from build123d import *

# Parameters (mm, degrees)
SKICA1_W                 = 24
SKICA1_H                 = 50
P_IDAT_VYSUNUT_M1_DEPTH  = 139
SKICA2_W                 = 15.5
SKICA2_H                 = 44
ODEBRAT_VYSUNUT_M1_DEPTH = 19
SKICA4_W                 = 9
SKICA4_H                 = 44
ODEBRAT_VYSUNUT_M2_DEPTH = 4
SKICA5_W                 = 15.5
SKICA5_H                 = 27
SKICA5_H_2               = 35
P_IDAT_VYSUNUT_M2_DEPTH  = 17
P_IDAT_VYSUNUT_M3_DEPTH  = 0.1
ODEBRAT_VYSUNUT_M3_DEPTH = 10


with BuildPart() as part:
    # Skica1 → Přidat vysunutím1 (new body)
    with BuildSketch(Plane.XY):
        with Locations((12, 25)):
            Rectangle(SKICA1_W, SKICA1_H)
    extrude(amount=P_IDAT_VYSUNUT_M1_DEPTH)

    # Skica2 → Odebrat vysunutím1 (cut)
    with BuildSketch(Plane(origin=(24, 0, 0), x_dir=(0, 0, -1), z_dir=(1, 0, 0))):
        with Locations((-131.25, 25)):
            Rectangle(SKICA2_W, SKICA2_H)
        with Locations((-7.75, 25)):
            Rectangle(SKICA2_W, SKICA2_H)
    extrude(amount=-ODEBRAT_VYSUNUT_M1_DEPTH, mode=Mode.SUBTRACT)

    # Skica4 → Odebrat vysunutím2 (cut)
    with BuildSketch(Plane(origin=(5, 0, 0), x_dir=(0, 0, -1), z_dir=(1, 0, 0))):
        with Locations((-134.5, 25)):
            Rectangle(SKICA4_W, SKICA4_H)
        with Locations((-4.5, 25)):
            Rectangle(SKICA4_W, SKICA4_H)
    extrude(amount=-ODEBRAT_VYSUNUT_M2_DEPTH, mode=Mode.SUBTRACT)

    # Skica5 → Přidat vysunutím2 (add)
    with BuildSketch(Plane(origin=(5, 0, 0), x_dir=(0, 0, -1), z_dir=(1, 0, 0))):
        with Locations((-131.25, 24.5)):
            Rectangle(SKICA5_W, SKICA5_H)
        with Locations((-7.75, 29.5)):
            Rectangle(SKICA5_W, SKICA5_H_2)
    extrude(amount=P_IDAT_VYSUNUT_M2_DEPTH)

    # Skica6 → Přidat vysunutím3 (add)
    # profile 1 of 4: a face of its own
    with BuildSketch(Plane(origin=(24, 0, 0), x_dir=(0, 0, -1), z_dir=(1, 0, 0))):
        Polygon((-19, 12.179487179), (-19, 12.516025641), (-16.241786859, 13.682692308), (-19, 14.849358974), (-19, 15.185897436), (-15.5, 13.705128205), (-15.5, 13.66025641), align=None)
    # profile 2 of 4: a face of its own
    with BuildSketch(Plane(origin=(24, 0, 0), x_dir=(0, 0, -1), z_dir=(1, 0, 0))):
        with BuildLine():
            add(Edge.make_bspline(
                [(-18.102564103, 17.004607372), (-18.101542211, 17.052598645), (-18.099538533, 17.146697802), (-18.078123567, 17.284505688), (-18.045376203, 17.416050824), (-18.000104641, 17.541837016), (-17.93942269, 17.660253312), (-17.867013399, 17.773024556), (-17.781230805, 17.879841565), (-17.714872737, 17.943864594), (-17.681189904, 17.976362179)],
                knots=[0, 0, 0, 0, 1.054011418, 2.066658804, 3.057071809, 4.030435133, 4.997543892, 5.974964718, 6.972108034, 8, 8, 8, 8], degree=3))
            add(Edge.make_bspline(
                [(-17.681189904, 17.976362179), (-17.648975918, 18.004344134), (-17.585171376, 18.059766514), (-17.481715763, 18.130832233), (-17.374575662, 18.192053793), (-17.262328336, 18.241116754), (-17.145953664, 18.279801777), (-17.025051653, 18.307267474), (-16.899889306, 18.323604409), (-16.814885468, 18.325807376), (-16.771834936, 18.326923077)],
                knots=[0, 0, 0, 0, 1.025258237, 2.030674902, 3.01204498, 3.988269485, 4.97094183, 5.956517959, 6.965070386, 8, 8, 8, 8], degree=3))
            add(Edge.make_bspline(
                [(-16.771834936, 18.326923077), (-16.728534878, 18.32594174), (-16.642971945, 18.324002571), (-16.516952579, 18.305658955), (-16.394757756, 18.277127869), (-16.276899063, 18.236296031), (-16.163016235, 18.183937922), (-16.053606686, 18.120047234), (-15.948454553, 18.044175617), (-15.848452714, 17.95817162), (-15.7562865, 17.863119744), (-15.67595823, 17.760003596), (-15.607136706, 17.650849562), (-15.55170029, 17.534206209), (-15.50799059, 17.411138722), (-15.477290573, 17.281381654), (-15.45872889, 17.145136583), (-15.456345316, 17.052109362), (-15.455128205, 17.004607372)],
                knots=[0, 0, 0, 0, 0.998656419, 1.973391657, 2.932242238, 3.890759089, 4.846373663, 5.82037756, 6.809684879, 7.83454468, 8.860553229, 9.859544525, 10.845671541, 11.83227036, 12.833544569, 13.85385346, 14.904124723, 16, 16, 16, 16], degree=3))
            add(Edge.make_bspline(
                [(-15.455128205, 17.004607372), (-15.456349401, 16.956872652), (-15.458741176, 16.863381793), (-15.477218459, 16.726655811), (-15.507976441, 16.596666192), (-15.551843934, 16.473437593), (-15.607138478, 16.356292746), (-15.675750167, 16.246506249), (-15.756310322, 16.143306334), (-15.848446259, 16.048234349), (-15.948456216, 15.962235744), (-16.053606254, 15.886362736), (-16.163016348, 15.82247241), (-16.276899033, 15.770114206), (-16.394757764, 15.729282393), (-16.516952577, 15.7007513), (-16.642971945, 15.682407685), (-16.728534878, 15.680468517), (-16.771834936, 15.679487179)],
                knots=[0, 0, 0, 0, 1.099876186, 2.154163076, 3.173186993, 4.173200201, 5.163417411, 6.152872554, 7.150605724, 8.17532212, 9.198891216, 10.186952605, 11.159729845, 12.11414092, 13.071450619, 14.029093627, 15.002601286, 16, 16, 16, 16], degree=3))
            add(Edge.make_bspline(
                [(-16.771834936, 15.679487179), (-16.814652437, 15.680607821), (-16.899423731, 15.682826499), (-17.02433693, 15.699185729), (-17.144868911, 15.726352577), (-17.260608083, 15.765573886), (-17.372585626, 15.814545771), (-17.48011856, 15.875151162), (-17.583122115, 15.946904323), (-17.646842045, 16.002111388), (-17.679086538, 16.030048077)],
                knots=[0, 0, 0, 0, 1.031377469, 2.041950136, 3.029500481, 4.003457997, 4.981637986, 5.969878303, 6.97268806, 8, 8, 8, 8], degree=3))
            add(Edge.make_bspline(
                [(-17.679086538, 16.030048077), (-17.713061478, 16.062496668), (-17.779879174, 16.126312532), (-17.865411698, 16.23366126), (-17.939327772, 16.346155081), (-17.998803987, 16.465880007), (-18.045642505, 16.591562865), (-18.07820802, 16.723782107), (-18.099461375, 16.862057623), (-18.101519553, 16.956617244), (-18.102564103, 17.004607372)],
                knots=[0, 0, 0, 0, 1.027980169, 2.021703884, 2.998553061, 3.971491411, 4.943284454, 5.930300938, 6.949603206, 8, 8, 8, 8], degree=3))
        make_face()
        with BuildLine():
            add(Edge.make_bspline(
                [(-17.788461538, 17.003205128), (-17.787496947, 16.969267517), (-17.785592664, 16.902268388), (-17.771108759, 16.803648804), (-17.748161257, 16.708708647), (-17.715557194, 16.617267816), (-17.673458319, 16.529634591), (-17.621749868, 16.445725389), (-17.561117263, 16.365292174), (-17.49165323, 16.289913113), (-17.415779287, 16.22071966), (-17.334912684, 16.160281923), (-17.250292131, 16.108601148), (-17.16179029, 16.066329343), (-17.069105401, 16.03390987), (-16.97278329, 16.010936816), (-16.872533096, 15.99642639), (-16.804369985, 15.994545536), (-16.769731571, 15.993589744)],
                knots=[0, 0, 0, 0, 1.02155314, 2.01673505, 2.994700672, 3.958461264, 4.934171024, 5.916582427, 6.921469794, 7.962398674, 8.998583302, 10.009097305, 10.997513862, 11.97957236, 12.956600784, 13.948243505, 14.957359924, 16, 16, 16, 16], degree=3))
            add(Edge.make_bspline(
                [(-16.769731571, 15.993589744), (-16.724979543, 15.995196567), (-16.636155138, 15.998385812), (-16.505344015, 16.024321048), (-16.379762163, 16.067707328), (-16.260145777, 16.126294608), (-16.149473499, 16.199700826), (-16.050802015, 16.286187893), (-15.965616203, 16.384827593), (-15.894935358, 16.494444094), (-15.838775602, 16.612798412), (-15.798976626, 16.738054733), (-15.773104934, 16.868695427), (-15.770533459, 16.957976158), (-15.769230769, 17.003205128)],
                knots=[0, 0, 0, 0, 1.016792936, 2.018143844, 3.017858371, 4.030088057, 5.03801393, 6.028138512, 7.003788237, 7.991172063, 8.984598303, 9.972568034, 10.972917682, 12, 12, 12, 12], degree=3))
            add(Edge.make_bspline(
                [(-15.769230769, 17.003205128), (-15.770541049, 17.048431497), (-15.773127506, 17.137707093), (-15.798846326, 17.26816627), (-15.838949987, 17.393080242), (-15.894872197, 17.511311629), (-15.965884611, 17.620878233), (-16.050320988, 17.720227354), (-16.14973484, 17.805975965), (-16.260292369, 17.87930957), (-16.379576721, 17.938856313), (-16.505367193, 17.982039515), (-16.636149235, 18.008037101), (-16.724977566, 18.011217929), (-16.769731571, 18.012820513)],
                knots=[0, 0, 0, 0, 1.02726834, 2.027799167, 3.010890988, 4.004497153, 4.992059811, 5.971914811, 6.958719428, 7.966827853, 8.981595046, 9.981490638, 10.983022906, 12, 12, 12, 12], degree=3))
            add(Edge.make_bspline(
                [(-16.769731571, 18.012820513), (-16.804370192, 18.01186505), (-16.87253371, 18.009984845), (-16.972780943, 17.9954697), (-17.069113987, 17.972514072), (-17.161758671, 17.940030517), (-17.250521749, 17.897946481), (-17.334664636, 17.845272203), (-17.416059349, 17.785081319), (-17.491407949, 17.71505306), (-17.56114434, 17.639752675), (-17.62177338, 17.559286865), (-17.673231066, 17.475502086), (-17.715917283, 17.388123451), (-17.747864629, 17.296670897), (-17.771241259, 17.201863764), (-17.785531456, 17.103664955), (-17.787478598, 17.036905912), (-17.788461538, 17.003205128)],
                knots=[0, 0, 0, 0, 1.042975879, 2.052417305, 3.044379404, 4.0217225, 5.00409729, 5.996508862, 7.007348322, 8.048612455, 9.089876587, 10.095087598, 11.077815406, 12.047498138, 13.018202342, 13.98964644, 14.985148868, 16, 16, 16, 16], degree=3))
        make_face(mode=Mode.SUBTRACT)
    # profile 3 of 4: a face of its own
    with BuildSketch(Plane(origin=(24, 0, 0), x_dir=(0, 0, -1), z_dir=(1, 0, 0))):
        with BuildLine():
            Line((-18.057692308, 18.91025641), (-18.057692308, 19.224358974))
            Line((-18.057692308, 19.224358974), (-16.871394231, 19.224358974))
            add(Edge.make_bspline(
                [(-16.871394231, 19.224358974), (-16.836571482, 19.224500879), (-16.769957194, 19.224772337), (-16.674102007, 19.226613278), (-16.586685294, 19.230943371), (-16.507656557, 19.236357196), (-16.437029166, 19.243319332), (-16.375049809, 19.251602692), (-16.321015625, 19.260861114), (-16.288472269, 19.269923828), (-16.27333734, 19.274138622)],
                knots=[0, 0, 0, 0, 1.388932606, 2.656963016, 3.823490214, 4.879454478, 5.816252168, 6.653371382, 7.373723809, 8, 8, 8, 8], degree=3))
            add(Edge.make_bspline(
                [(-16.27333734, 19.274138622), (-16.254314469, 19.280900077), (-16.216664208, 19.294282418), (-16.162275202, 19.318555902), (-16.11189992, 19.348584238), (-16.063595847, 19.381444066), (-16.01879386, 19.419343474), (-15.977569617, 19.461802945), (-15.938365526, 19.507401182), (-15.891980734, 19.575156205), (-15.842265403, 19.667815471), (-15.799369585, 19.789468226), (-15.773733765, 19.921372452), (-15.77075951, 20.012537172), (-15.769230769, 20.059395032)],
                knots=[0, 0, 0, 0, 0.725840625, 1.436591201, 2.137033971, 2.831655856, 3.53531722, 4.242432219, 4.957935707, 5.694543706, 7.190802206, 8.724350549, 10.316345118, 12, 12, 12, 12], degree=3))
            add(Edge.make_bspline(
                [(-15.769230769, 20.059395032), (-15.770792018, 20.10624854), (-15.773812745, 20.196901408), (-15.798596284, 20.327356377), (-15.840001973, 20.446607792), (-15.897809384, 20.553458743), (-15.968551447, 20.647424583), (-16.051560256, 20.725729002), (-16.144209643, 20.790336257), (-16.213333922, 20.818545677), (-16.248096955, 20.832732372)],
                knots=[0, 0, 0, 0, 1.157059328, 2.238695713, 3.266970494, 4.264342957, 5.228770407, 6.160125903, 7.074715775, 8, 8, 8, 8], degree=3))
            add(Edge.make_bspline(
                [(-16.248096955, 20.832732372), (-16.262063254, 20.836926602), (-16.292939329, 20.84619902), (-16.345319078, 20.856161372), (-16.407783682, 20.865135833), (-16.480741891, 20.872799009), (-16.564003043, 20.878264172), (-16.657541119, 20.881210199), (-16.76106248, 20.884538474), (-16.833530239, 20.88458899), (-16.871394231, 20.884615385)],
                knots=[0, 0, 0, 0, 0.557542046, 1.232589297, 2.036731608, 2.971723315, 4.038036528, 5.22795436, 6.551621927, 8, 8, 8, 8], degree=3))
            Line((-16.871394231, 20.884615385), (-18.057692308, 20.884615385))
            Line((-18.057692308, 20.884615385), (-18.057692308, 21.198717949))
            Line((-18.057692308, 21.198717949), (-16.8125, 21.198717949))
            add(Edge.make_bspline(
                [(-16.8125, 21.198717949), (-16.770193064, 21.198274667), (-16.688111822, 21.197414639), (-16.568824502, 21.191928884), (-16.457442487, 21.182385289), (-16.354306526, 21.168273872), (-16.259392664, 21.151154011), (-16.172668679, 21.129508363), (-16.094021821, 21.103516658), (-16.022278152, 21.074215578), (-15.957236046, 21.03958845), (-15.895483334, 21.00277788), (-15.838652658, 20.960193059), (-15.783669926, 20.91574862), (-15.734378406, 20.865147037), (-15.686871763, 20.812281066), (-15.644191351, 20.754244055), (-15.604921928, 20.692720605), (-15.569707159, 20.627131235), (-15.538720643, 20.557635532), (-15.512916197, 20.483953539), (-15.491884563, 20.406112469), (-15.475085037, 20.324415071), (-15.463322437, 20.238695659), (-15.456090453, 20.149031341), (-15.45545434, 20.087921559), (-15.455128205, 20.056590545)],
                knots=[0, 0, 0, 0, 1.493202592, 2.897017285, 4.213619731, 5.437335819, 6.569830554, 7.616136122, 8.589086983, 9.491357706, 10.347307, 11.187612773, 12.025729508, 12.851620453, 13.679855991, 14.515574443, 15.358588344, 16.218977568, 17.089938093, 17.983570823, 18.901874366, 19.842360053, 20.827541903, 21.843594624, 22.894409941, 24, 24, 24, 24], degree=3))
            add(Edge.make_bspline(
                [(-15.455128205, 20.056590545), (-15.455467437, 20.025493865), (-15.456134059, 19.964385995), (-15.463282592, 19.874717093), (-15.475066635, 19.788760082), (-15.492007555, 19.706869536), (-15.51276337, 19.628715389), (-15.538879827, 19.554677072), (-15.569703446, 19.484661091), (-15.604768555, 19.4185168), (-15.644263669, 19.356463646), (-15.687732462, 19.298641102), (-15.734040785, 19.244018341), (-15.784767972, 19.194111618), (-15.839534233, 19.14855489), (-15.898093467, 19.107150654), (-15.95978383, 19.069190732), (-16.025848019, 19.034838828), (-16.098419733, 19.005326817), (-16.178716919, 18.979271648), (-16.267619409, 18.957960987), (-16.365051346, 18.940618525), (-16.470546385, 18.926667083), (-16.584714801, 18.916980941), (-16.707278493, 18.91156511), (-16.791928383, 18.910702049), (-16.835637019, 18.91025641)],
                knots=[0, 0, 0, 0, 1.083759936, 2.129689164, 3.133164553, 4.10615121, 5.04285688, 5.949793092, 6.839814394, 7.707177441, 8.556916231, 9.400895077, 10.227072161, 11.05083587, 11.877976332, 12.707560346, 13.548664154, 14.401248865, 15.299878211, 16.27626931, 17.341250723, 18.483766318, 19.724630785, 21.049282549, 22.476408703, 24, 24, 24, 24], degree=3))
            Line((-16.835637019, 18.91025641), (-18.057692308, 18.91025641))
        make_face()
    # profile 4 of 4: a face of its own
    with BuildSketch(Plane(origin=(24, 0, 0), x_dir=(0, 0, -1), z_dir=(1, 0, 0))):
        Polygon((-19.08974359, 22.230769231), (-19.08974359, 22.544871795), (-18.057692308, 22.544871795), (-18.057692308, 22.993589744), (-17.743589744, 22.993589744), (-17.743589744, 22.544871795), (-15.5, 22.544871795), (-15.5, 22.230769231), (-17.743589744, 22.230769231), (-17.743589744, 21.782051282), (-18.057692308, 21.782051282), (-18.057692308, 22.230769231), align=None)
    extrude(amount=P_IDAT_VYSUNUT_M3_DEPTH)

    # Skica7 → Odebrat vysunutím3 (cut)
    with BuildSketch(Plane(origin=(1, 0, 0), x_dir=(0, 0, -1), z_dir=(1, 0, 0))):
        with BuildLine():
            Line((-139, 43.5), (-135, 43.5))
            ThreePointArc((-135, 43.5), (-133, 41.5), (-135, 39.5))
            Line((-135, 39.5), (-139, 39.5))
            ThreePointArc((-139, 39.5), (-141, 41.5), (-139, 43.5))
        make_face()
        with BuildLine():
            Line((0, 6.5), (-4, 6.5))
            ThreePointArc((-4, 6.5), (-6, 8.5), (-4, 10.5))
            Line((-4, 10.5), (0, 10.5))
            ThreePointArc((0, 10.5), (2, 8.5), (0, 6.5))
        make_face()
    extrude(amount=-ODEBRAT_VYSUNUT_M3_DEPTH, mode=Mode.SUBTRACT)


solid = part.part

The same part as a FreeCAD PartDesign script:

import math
import FreeCAD as App
import Part
import Sketcher
from FreeCAD import Vector
Q = App.Units.Quantity

doc = App.newDocument("Part")
body = doc.addObject("PartDesign::Body", "Body")

sketch1 = body.newObject("Sketcher::SketchObject", "Sketch")
sketch1.AttachmentSupport = (doc.getObject("XY_Plane"), [""])
sketch1.MapMode = "FlatFace"
sketch1.addGeometry([
    Part.LineSegment(Vector(0, 50, 0), Vector(0, 0, 0)),
    Part.LineSegment(Vector(0, 0, 0), Vector(24, 0, 0)),
    Part.LineSegment(Vector(24, 0, 0), Vector(24, 50, 0)),
    Part.LineSegment(Vector(24, 50, 0), Vector(0, 50, 0)),
], False)
sketch1.addConstraint([
    Sketcher.Constraint("Coincident", 0, 2, 1, 1),
    Sketcher.Constraint("Coincident", 1, 2, 2, 1),
    Sketcher.Constraint("Coincident", 2, 2, 3, 1),
    Sketcher.Constraint("Coincident", 3, 2, 0, 1),
    Sketcher.Constraint("Vertical", 0),
    Sketcher.Constraint("Horizontal", 1),
    Sketcher.Constraint("Vertical", 2),
    Sketcher.Constraint("Horizontal", 3),
    Sketcher.Constraint("Coincident", 0, 2, -1, 1),
    Sketcher.Constraint("DistanceX", 1, 1, 1, 2, Q("24 mm")),
    Sketcher.Constraint("DistanceY", 0, 2, 0, 1, Q("50 mm")),
])
pad1 = body.newObject("PartDesign::Pad", "Pad")
pad1.Profile = sketch1
pad1.Length = 139

sketch2 = body.newObject("Sketcher::SketchObject", "Sketch001")
sketch2.AttachmentSupport = (doc.getObject("YZ_Plane"), [""])
sketch2.MapMode = "FlatFace"
sketch2.AttachmentOffset = App.Placement(Vector(0, 0, 24), App.Rotation())
sketch2.addGeometry([
    Part.LineSegment(Vector(47, 139, 0), Vector(3, 139, 0)),
    Part.LineSegment(Vector(3, 139, 0), Vector(3, 123.5, 0)),
    Part.LineSegment(Vector(3, 123.5, 0), Vector(47, 123.5, 0)),
    Part.LineSegment(Vector(47, 123.5, 0), Vector(47, 139, 0)),
    Part.LineSegment(Vector(47, 15.5, 0), Vector(3, 15.5, 0)),
    Part.LineSegment(Vector(3, 15.5, 0), Vector(3, 0, 0)),
    Part.LineSegment(Vector(3, 0, 0), Vector(47, 0, 0)),
    Part.LineSegment(Vector(47, 0, 0), Vector(47, 15.5, 0)),
], False)
sketch2.addConstraint([
    Sketcher.Constraint("Coincident", 0, 2, 1, 1),
    Sketcher.Constraint("Coincident", 1, 2, 2, 1),
    Sketcher.Constraint("Coincident", 2, 2, 3, 1),
    Sketcher.Constraint("Coincident", 3, 2, 0, 1),
    Sketcher.Constraint("Coincident", 4, 2, 5, 1),
    Sketcher.Constraint("Coincident", 5, 2, 6, 1),
    Sketcher.Constraint("Coincident", 6, 2, 7, 1),
    Sketcher.Constraint("Coincident", 7, 2, 4, 1),
    Sketcher.Constraint("Horizontal", 0),
    Sketcher.Constraint("Vertical", 1),
    Sketcher.Constraint("Horizontal", 2),
    Sketcher.Constraint("Vertical", 3),
    Sketcher.Constraint("Horizontal", 4),
    Sketcher.Constraint("Vertical", 5),
    Sketcher.Constraint("Horizontal", 6),
    Sketcher.Constraint("Vertical", 7),
    Sketcher.Constraint("PointOnObject", 5, 2, -1),
    Sketcher.Constraint("Vertical", 1, 2, 4, 2),
    Sketcher.Constraint("Vertical", 3, 2, 6, 2),
    Sketcher.Constraint("Equal", 3, 5),
    Sketcher.Constraint("DistanceX", 0, 2, 0, 1, Q("44 mm")),
    Sketcher.Constraint("DistanceY", 1, 2, 1, 1, Q("15.5 mm")),
    Sketcher.Constraint("DistanceX", -1, 1, 0, 2, Q("3 mm")),
    Sketcher.Constraint("DistanceY", -1, 1, 0, 2, Q("139 mm")),
])
pocket1 = body.newObject("PartDesign::Pocket", "Pocket")
pocket1.Profile = sketch2
pocket1.Length = 19

sketch3 = body.newObject("Sketcher::SketchObject", "Sketch002")
sketch3.AttachmentSupport = (doc.getObject("YZ_Plane"), [""])
sketch3.MapMode = "FlatFace"
sketch3.AttachmentOffset = App.Placement(Vector(0, 0, 5), App.Rotation())
sketch3.addGeometry([
    Part.LineSegment(Vector(47, 139, 0), Vector(3, 139, 0)),
    Part.LineSegment(Vector(3, 139, 0), Vector(3, 130, 0)),
    Part.LineSegment(Vector(3, 130, 0), Vector(47, 130, 0)),
    Part.LineSegment(Vector(47, 130, 0), Vector(47, 139, 0)),
    Part.LineSegment(Vector(47, 9, 0), Vector(3, 9, 0)),
    Part.LineSegment(Vector(3, 9, 0), Vector(3, 0, 0)),
    Part.LineSegment(Vector(3, 0, 0), Vector(47, 0, 0)),
    Part.LineSegment(Vector(47, 0, 0), Vector(47, 9, 0)),
], False)
sketch3.addConstraint([
    Sketcher.Constraint("Coincident", 0, 2, 1, 1),
    Sketcher.Constraint("Coincident", 1, 2, 2, 1),
    Sketcher.Constraint("Coincident", 2, 2, 3, 1),
    Sketcher.Constraint("Coincident", 3, 2, 0, 1),
    Sketcher.Constraint("Coincident", 4, 2, 5, 1),
    Sketcher.Constraint("Coincident", 5, 2, 6, 1),
    Sketcher.Constraint("Coincident", 6, 2, 7, 1),
    Sketcher.Constraint("Coincident", 7, 2, 4, 1),
    Sketcher.Constraint("Horizontal", 0),
    Sketcher.Constraint("Vertical", 1),
    Sketcher.Constraint("Horizontal", 2),
    Sketcher.Constraint("Vertical", 3),
    Sketcher.Constraint("Horizontal", 4),
    Sketcher.Constraint("Vertical", 5),
    Sketcher.Constraint("Horizontal", 6),
    Sketcher.Constraint("Vertical", 7),
    Sketcher.Constraint("PointOnObject", 5, 2, -1),
    Sketcher.Constraint("Vertical", 1, 2, 4, 2),
    Sketcher.Constraint("Vertical", 3, 2, 6, 2),
    Sketcher.Constraint("Equal", 3, 5),
    Sketcher.Constraint("DistanceX", 0, 2, 0, 1, Q("44 mm")),
    Sketcher.Constraint("DistanceY", 1, 2, 1, 1, Q("9 mm")),
    Sketcher.Constraint("DistanceX", -1, 1, 0, 2, Q("3 mm")),
    Sketcher.Constraint("DistanceY", -1, 1, 0, 2, Q("139 mm")),
])
pocket2 = body.newObject("PartDesign::Pocket", "Pocket001")
pocket2.Profile = sketch3
pocket2.Length = 4

sketch4 = body.newObject("Sketcher::SketchObject", "Sketch003")
sketch4.AttachmentSupport = (doc.getObject("YZ_Plane"), [""])
sketch4.MapMode = "FlatFace"
sketch4.AttachmentOffset = App.Placement(Vector(0, 0, 5), App.Rotation())
sketch4.addGeometry([
    Part.LineSegment(Vector(38, 139, 0), Vector(11, 139, 0)),
    Part.LineSegment(Vector(11, 139, 0), Vector(11, 123.5, 0)),
    Part.LineSegment(Vector(11, 123.5, 0), Vector(38, 123.5, 0)),
    Part.LineSegment(Vector(38, 123.5, 0), Vector(38, 139, 0)),
    Part.LineSegment(Vector(47, 15.5, 0), Vector(12, 15.5, 0)),
    Part.LineSegment(Vector(12, 15.5, 0), Vector(12, 0, 0)),
    Part.LineSegment(Vector(12, 0, 0), Vector(47, 0, 0)),
    Part.LineSegment(Vector(47, 0, 0), Vector(47, 15.5, 0)),
], False)
sketch4.addConstraint([
    Sketcher.Constraint("Coincident", 0, 2, 1, 1),
    Sketcher.Constraint("Coincident", 1, 2, 2, 1),
    Sketcher.Constraint("Coincident", 2, 2, 3, 1),
    Sketcher.Constraint("Coincident", 3, 2, 0, 1),
    Sketcher.Constraint("Coincident", 4, 2, 5, 1),
    Sketcher.Constraint("Coincident", 5, 2, 6, 1),
    Sketcher.Constraint("Coincident", 6, 2, 7, 1),
    Sketcher.Constraint("Coincident", 7, 2, 4, 1),
    Sketcher.Constraint("Horizontal", 0),
    Sketcher.Constraint("Vertical", 1),
    Sketcher.Constraint("Horizontal", 2),
    Sketcher.Constraint("Vertical", 3),
    Sketcher.Constraint("Horizontal", 4),
    Sketcher.Constraint("Vertical", 5),
    Sketcher.Constraint("Horizontal", 6),
    Sketcher.Constraint("Vertical", 7),
    Sketcher.Constraint("PointOnObject", 5, 2, -1),
    Sketcher.Constraint("Equal", 3, 5),
    Sketcher.Constraint("DistanceX", 0, 2, 0, 1, Q("27 mm")),
    Sketcher.Constraint("DistanceX", 4, 2, 4, 1, Q("35 mm")),
    Sketcher.Constraint("DistanceY", 1, 2, 1, 1, Q("15.5 mm")),
    Sketcher.Constraint("DistanceX", -1, 1, 0, 2, Q("11 mm")),
    Sketcher.Constraint("DistanceY", -1, 1, 0, 2, Q("139 mm")),
    Sketcher.Constraint("DistanceX", -1, 1, 4, 2, Q("12 mm")),
])
pad2 = body.newObject("PartDesign::Pad", "Pad001")
pad2.Profile = sketch4
pad2.Length = 17

sketch5 = body.newObject("Sketcher::SketchObject", "Sketch004")
sketch5.AttachmentSupport = (doc.getObject("YZ_Plane"), [""])
sketch5.MapMode = "FlatFace"
sketch5.AttachmentOffset = App.Placement(Vector(0, 0, 24), App.Rotation())
sketch5.addGeometry([
    Part.LineSegment(Vector(12.516026, 19, 0), Vector(12.179487, 19, 0)),
    Part.LineSegment(Vector(12.179487, 19, 0), Vector(13.660256, 15.5, 0)),
    Part.LineSegment(Vector(13.660256, 15.5, 0), Vector(13.705128, 15.5, 0)),
    Part.LineSegment(Vector(13.705128, 15.5, 0), Vector(15.185897, 19, 0)),
    Part.LineSegment(Vector(15.185897, 19, 0), Vector(14.849359, 19, 0)),
    Part.LineSegment(Vector(14.849359, 19, 0), Vector(13.682692, 16.241787, 0)),
    Part.LineSegment(Vector(13.682692, 16.241787, 0), Vector(12.516026, 19, 0)),
    Part.BSplineCurve([Vector(17.004607, 18.102564, 0), Vector(17.052599, 18.101542, 0), Vector(17.146698, 18.099539, 0), Vector(17.284506, 18.078124, 0), Vector(17.416051, 18.045376, 0), Vector(17.541837, 18.000105, 0), Vector(17.660253, 17.939423, 0), Vector(17.773025, 17.867013, 0), Vector(17.879842, 17.781231, 0), Vector(17.943865, 17.714873, 0), Vector(17.976362, 17.68119, 0)], [4, 1, 1, 1, 1, 1, 1, 1, 4], [0, 1.054011418, 2.066658804, 3.057071809, 4.030435133, 4.997543892, 5.974964718, 6.972108034, 8], False, 3, [1, 1, 1, 1, 1, 1, 1, 1, 1, 1, 1], False),
    Part.BSplineCurve([Vector(16.030048, 17.679087, 0), Vector(16.062497, 17.713061, 0), Vector(16.126313, 17.779879, 0), Vector(16.233661, 17.865412, 0), Vector(16.346155, 17.939328, 0), Vector(16.46588, 17.998804, 0), Vector(16.591563, 18.045643, 0), Vector(16.723782, 18.078208, 0), Vector(16.862058, 18.099461, 0), Vector(16.956617, 18.10152, 0), Vector(17.004607, 18.102564, 0)], [4, 1, 1, 1, 1, 1, 1, 1, 4], [0, 1.027980169, 2.021703884, 2.998553061, 3.971491411, 4.943284454, 5.930300938, 6.949603206, 8], False, 3, [1, 1, 1, 1, 1, 1, 1, 1, 1, 1, 1], False),
    Part.BSplineCurve([Vector(15.679487, 16.771835, 0), Vector(15.680608, 16.814652, 0), Vector(15.682826, 16.899424, 0), Vector(15.699186, 17.024337, 0), Vector(15.726353, 17.144869, 0), Vector(15.765574, 17.260608, 0), Vector(15.814546, 17.372586, 0), Vector(15.875151, 17.480119, 0), Vector(15.946904, 17.583122, 0), Vector(16.002111, 17.646842, 0), Vector(16.030048, 17.679087, 0)], [4, 1, 1, 1, 1, 1, 1, 1, 4], [0, 1.031377469, 2.041950136, 3.029500481, 4.003457997, 4.981637986, 5.969878303, 6.97268806, 8], False, 3, [1, 1, 1, 1, 1, 1, 1, 1, 1, 1, 1], False),
    Part.BSplineCurve([Vector(17.004607, 15.455128, 0), Vector(16.956873, 15.456349, 0), Vector(16.863382, 15.458741, 0), Vector(16.726656, 15.477218, 0), Vector(16.596666, 15.507976, 0), Vector(16.473438, 15.551844, 0), Vector(16.356293, 15.607138, 0), Vector(16.246506, 15.67575, 0), Vector(16.143306, 15.75631, 0), Vector(16.048234, 15.848446, 0), Vector(15.962236, 15.948456, 0), Vector(15.886363, 16.053606, 0), Vector(15.822472, 16.163016, 0), Vector(15.770114, 16.276899, 0), Vector(15.729282, 16.394758, 0), Vector(15.700751, 16.516953, 0), Vector(15.682408, 16.642972, 0), Vector(15.680469, 16.728535, 0), Vector(15.679487, 16.771835, 0)], [4, 1, 1, 1, 1, 1, 1, 1, 1, 1, 1, 1, 1, 1, 1, 1, 4], [0, 1.099876186, 2.154163076, 3.173186993, 4.173200201, 5.163417411, 6.152872554, 7.150605724, 8.17532212, 9.198891216, 10.186952605, 11.159729845, 12.11414092, 13.071450619, 14.029093627, 15.002601286, 16], False, 3, [1, 1, 1, 1, 1, 1, 1, 1, 1, 1, 1, 1, 1, 1, 1, 1, 1, 1, 1], False),
    Part.BSplineCurve([Vector(18.326923, 16.771835, 0), Vector(18.325942, 16.728535, 0), Vector(18.324003, 16.642972, 0), Vector(18.305659, 16.516953, 0), Vector(18.277128, 16.394758, 0), Vector(18.236296, 16.276899, 0), Vector(18.183938, 16.163016, 0), Vector(18.120047, 16.053607, 0), Vector(18.044176, 15.948455, 0), Vector(17.958172, 15.848453, 0), Vector(17.86312, 15.756286, 0), Vector(17.760004, 15.675958, 0), Vector(17.65085, 15.607137, 0), Vector(17.534206, 15.5517, 0), Vector(17.411139, 15.507991, 0), Vector(17.281382, 15.477291, 0), Vector(17.145137, 15.458729, 0), Vector(17.052109, 15.456345, 0), Vector(17.004607, 15.455128, 0)], [4, 1, 1, 1, 1, 1, 1, 1, 1, 1, 1, 1, 1, 1, 1, 1, 4], [0, 0.998656419, 1.973391657, 2.932242238, 3.890759089, 4.846373663, 5.82037756, 6.809684879, 7.83454468, 8.860553229, 9.859544525, 10.845671541, 11.83227036, 12.833544569, 13.85385346, 14.904124723, 16], False, 3, [1, 1, 1, 1, 1, 1, 1, 1, 1, 1, 1, 1, 1, 1, 1, 1, 1, 1, 1], False),
    Part.BSplineCurve([Vector(17.976362, 17.68119, 0), Vector(18.004344, 17.648976, 0), Vector(18.059767, 17.585171, 0), Vector(18.130832, 17.481716, 0), Vector(18.192054, 17.374576, 0), Vector(18.241117, 17.262328, 0), Vector(18.279802, 17.145954, 0), Vector(18.307267, 17.025052, 0), Vector(18.323604, 16.899889, 0), Vector(18.325807, 16.814885, 0), Vector(18.326923, 16.771835, 0)], [4, 1, 1, 1, 1, 1, 1, 1, 4], [0, 1.025258237, 2.030674902, 3.01204498, 3.988269485, 4.97094183, 5.956517959, 6.965070386, 8], False, 3, [1, 1, 1, 1, 1, 1, 1, 1, 1, 1, 1], False),
    Part.BSplineCurve([Vector(18.012821, 16.769732, 0), Vector(18.011865, 16.80437, 0), Vector(18.009985, 16.872534, 0), Vector(17.99547, 16.972781, 0), Vector(17.972514, 17.069114, 0), Vector(17.940031, 17.161759, 0), Vector(17.897946, 17.250522, 0), Vector(17.845272, 17.334665, 0), Vector(17.785081, 17.416059, 0), Vector(17.715053, 17.491408, 0), Vector(17.639753, 17.561144, 0), Vector(17.559287, 17.621773, 0), Vector(17.475502, 17.673231, 0), Vector(17.388123, 17.715917, 0), Vector(17.296671, 17.747865, 0), Vector(17.201864, 17.771241, 0), Vector(17.103665, 17.785531, 0), Vector(17.036906, 17.787479, 0), Vector(17.003205, 17.788462, 0)], [4, 1, 1, 1, 1, 1, 1, 1, 1, 1, 1, 1, 1, 1, 1, 1, 4], [0, 1.042975879, 2.052417305, 3.044379404, 4.0217225, 5.00409729, 5.996508862, 7.007348322, 8.048612455, 9.089876587, 10.095087598, 11.077815406, 12.047498138, 13.018202342, 13.98964644, 14.985148868, 16], False, 3, [1, 1, 1, 1, 1, 1, 1, 1, 1, 1, 1, 1, 1, 1, 1, 1, 1, 1, 1], False),
    Part.BSplineCurve([Vector(17.003205, 15.769231, 0), Vector(17.048431, 15.770541, 0), Vector(17.137707, 15.773128, 0), Vector(17.268166, 15.798846, 0), Vector(17.39308, 15.83895, 0), Vector(17.511312, 15.894872, 0), Vector(17.620878, 15.965885, 0), Vector(17.720227, 16.050321, 0), Vector(17.805976, 16.149735, 0), Vector(17.87931, 16.260292, 0), Vector(17.938856, 16.379577, 0), Vector(17.98204, 16.505367, 0), Vector(18.008037, 16.636149, 0), Vector(18.011218, 16.724978, 0), Vector(18.012821, 16.769732, 0)], [4, 1, 1, 1, 1, 1, 1, 1, 1, 1, 1, 1, 4], [0, 1.02726834, 2.027799167, 3.010890988, 4.004497153, 4.992059811, 5.971914811, 6.958719428, 7.966827853, 8.981595046, 9.981490638, 10.983022906, 12], False, 3, [1, 1, 1, 1, 1, 1, 1, 1, 1, 1, 1, 1, 1, 1, 1], False),
    Part.BSplineCurve([Vector(15.99359, 16.769732, 0), Vector(15.995197, 16.72498, 0), Vector(15.998386, 16.636155, 0), Vector(16.024321, 16.505344, 0), Vector(16.067707, 16.379762, 0), Vector(16.126295, 16.260146, 0), Vector(16.199701, 16.149473, 0), Vector(16.286188, 16.050802, 0), Vector(16.384828, 15.965616, 0), Vector(16.494444, 15.894935, 0), Vector(16.612798, 15.838776, 0), Vector(16.738055, 15.798977, 0), Vector(16.868695, 15.773105, 0), Vector(16.957976, 15.770533, 0), Vector(17.003205, 15.769231, 0)], [4, 1, 1, 1, 1, 1, 1, 1, 1, 1, 1, 1, 4], [0, 1.016792936, 2.018143844, 3.017858371, 4.030088057, 5.03801393, 6.028138512, 7.003788237, 7.991172063, 8.984598303, 9.972568034, 10.972917682, 12], False, 3, [1, 1, 1, 1, 1, 1, 1, 1, 1, 1, 1, 1, 1, 1, 1], False),
    Part.BSplineCurve([Vector(17.003205, 17.788462, 0), Vector(16.969268, 17.787497, 0), Vector(16.902268, 17.785593, 0), Vector(16.803649, 17.771109, 0), Vector(16.708709, 17.748161, 0), Vector(16.617268, 17.715557, 0), Vector(16.529635, 17.673458, 0), Vector(16.445725, 17.62175, 0), Vector(16.365292, 17.561117, 0), Vector(16.289913, 17.491653, 0), Vector(16.22072, 17.415779, 0), Vector(16.160282, 17.334913, 0), Vector(16.108601, 17.250292, 0), Vector(16.066329, 17.16179, 0), Vector(16.03391, 17.069105, 0), Vector(16.010937, 16.972783, 0), Vector(15.996426, 16.872533, 0), Vector(15.994546, 16.80437, 0), Vector(15.99359, 16.769732, 0)], [4, 1, 1, 1, 1, 1, 1, 1, 1, 1, 1, 1, 1, 1, 1, 1, 4], [0, 1.02155314, 2.01673505, 2.994700672, 3.958461264, 4.934171024, 5.916582427, 6.921469794, 7.962398674, 8.998583302, 10.009097305, 10.997513862, 11.97957236, 12.956600784, 13.948243505, 14.957359924, 16], False, 3, [1, 1, 1, 1, 1, 1, 1, 1, 1, 1, 1, 1, 1, 1, 1, 1, 1, 1, 1], False),
    Part.LineSegment(Vector(19.224359, 18.057692, 0), Vector(18.910256, 18.057692, 0)),
    Part.LineSegment(Vector(18.910256, 18.057692, 0), Vector(18.910256, 16.835637, 0)),
    Part.BSplineCurve([Vector(20.056591, 15.455128, 0), Vector(20.025494, 15.455467, 0), Vector(19.964386, 15.456134, 0), Vector(19.874717, 15.463283, 0), Vector(19.78876, 15.475067, 0), Vector(19.70687, 15.492008, 0), Vector(19.628715, 15.512763, 0), Vector(19.554677, 15.53888, 0), Vector(19.484661, 15.569703, 0), Vector(19.418517, 15.604769, 0), Vector(19.356464, 15.644264, 0), Vector(19.298641, 15.687732, 0), Vector(19.244018, 15.734041, 0), Vector(19.194112, 15.784768, 0), Vector(19.148555, 15.839534, 0), Vector(19.107151, 15.898093, 0), Vector(19.069191, 15.959784, 0), Vector(19.034839, 16.025848, 0), Vector(19.005327, 16.09842, 0), Vector(18.979272, 16.178717, 0), Vector(18.957961, 16.267619, 0), Vector(18.940619, 16.365051, 0), Vector(18.926667, 16.470546, 0), Vector(18.916981, 16.584715, 0), Vector(18.911565, 16.707278, 0), Vector(18.910702, 16.791928, 0), Vector(18.910256, 16.835637, 0)], [4, 1, 1, 1, 1, 1, 1, 1, 1, 1, 1, 1, 1, 1, 1, 1, 1, 1, 1, 1, 1, 1, 1, 1, 4], [0, 1.083759936, 2.129689164, 3.133164553, 4.10615121, 5.04285688, 5.949793092, 6.839814394, 7.707177441, 8.556916231, 9.400895077, 10.227072161, 11.05083587, 11.877976332, 12.707560346, 13.548664154, 14.401248865, 15.299878211, 16.27626931, 17.341250723, 18.483766318, 19.724630785, 21.049282549, 22.476408703, 24], False, 3, [1, 1, 1, 1, 1, 1, 1, 1, 1, 1, 1, 1, 1, 1, 1, 1, 1, 1, 1, 1, 1, 1, 1, 1, 1, 1, 1], False),
    Part.BSplineCurve([Vector(21.198718, 16.8125, 0), Vector(21.198275, 16.770193, 0), Vector(21.197415, 16.688112, 0), Vector(21.191929, 16.568825, 0), Vector(21.182385, 16.457442, 0), Vector(21.168274, 16.354307, 0), Vector(21.151154, 16.259393, 0), Vector(21.129508, 16.172669, 0), Vector(21.103517, 16.094022, 0), Vector(21.074216, 16.022278, 0), Vector(21.039588, 15.957236, 0), Vector(21.002778, 15.895483, 0), Vector(20.960193, 15.838653, 0), Vector(20.915749, 15.78367, 0), Vector(20.865147, 15.734378, 0), Vector(20.812281, 15.686872, 0), Vector(20.754244, 15.644191, 0), Vector(20.692721, 15.604922, 0), Vector(20.627131, 15.569707, 0), Vector(20.557636, 15.538721, 0), Vector(20.483954, 15.512916, 0), Vector(20.406112, 15.491885, 0), Vector(20.324415, 15.475085, 0), Vector(20.238696, 15.463322, 0), Vector(20.149031, 15.45609, 0), Vector(20.087922, 15.455454, 0), Vector(20.056591, 15.455128, 0)], [4, 1, 1, 1, 1, 1, 1, 1, 1, 1, 1, 1, 1, 1, 1, 1, 1, 1, 1, 1, 1, 1, 1, 1, 4], [0, 1.493202592, 2.897017285, 4.213619731, 5.437335819, 6.569830554, 7.616136122, 8.589086983, 9.491357706, 10.347307, 11.187612773, 12.025729508, 12.851620453, 13.679855991, 14.515574443, 15.358588344, 16.218977568, 17.089938093, 17.983570823, 18.901874366, 19.842360053, 20.827541903, 21.843594624, 22.894409941, 24], False, 3, [1, 1, 1, 1, 1, 1, 1, 1, 1, 1, 1, 1, 1, 1, 1, 1, 1, 1, 1, 1, 1, 1, 1, 1, 1, 1, 1], False),
    Part.LineSegment(Vector(21.198718, 16.8125, 0), Vector(21.198718, 18.057692, 0)),
    Part.LineSegment(Vector(21.198718, 18.057692, 0), Vector(20.884615, 18.057692, 0)),
    Part.LineSegment(Vector(20.884615, 18.057692, 0), Vector(20.884615, 16.871394, 0)),
    Part.BSplineCurve([Vector(20.832732, 16.248097, 0), Vector(20.836927, 16.262063, 0), Vector(20.846199, 16.292939, 0), Vector(20.856161, 16.345319, 0), Vector(20.865136, 16.407784, 0), Vector(20.872799, 16.480742, 0), Vector(20.878264, 16.564003, 0), Vector(20.88121, 16.657541, 0), Vector(20.884538, 16.761062, 0), Vector(20.884589, 16.83353, 0), Vector(20.884615, 16.871394, 0)], [4, 1, 1, 1, 1, 1, 1, 1, 4], [0, 0.557542046, 1.232589297, 2.036731608, 2.971723315, 4.038036528, 5.22795436, 6.551621927, 8], False, 3, [1, 1, 1, 1, 1, 1, 1, 1, 1, 1, 1], False),
    Part.BSplineCurve([Vector(20.059395, 15.769231, 0), Vector(20.106249, 15.770792, 0), Vector(20.196901, 15.773813, 0), Vector(20.327356, 15.798596, 0), Vector(20.446608, 15.840002, 0), Vector(20.553459, 15.897809, 0), Vector(20.647425, 15.968551, 0), Vector(20.725729, 16.05156, 0), Vector(20.790336, 16.14421, 0), Vector(20.818546, 16.213334, 0), Vector(20.832732, 16.248097, 0)], [4, 1, 1, 1, 1, 1, 1, 1, 4], [0, 1.157059328, 2.238695713, 3.266970494, 4.264342957, 5.228770407, 6.160125903, 7.074715775, 8], False, 3, [1, 1, 1, 1, 1, 1, 1, 1, 1, 1, 1], False),
    Part.BSplineCurve([Vector(19.274139, 16.273337, 0), Vector(19.2809, 16.254314, 0), Vector(19.294282, 16.216664, 0), Vector(19.318556, 16.162275, 0), Vector(19.348584, 16.1119, 0), Vector(19.381444, 16.063596, 0), Vector(19.419343, 16.018794, 0), Vector(19.461803, 15.97757, 0), Vector(19.507401, 15.938366, 0), Vector(19.575156, 15.891981, 0), Vector(19.667815, 15.842265, 0), Vector(19.789468, 15.79937, 0), Vector(19.921372, 15.773734, 0), Vector(20.012537, 15.77076, 0), Vector(20.059395, 15.769231, 0)], [4, 1, 1, 1, 1, 1, 1, 1, 1, 1, 1, 1, 4], [0, 0.725840625, 1.436591201, 2.137033971, 2.831655856, 3.53531722, 4.242432219, 4.957935707, 5.694543706, 7.190802206, 8.724350549, 10.316345118, 12], False, 3, [1, 1, 1, 1, 1, 1, 1, 1, 1, 1, 1, 1, 1, 1, 1], False),
    Part.BSplineCurve([Vector(19.224359, 16.871394, 0), Vector(19.224501, 16.836571, 0), Vector(19.224772, 16.769957, 0), Vector(19.226613, 16.674102, 0), Vector(19.230943, 16.586685, 0), Vector(19.236357, 16.507657, 0), Vector(19.243319, 16.437029, 0), Vector(19.251603, 16.37505, 0), Vector(19.260861, 16.321016, 0), Vector(19.269924, 16.288472, 0), Vector(19.274139, 16.273337, 0)], [4, 1, 1, 1, 1, 1, 1, 1, 4], [0, 1.388932606, 2.656963016, 3.823490214, 4.879454478, 5.816252168, 6.653371382, 7.373723809, 8], False, 3, [1, 1, 1, 1, 1, 1, 1, 1, 1, 1, 1], False),
    Part.LineSegment(Vector(19.224359, 16.871394, 0), Vector(19.224359, 18.057692, 0)),
    Part.LineSegment(Vector(22.544872, 19.089744, 0), Vector(22.230769, 19.089744, 0)),
    Part.LineSegment(Vector(22.230769, 19.089744, 0), Vector(22.230769, 18.057692, 0)),
    Part.LineSegment(Vector(22.230769, 18.057692, 0), Vector(21.782051, 18.057692, 0)),
    Part.LineSegment(Vector(21.782051, 18.057692, 0), Vector(21.782051, 17.74359, 0)),
    Part.LineSegment(Vector(21.782051, 17.74359, 0), Vector(22.230769, 17.74359, 0)),
    Part.LineSegment(Vector(22.230769, 17.74359, 0), Vector(22.230769, 15.5, 0)),
    Part.LineSegment(Vector(22.230769, 15.5, 0), Vector(22.544872, 15.5, 0)),
    Part.LineSegment(Vector(22.544872, 15.5, 0), Vector(22.544872, 17.74359, 0)),
    Part.LineSegment(Vector(22.544872, 17.74359, 0), Vector(22.99359, 17.74359, 0)),
    Part.LineSegment(Vector(22.99359, 17.74359, 0), Vector(22.99359, 18.057692, 0)),
    Part.LineSegment(Vector(22.99359, 18.057692, 0), Vector(22.544872, 18.057692, 0)),
    Part.LineSegment(Vector(22.544872, 18.057692, 0), Vector(22.544872, 19.089744, 0)),
], False)
sketch5.addConstraint([
    Sketcher.Constraint("Block", 7),
    Sketcher.Constraint("Block", 8),
    Sketcher.Constraint("Block", 9),
    Sketcher.Constraint("Block", 10),
    Sketcher.Constraint("Block", 11),
    Sketcher.Constraint("Block", 12),
    Sketcher.Constraint("Block", 13),
    Sketcher.Constraint("Block", 14),
    Sketcher.Constraint("Block", 15),
    Sketcher.Constraint("Block", 16),
    Sketcher.Constraint("Block", 19),
    Sketcher.Constraint("Block", 20),
    Sketcher.Constraint("Block", 24),
    Sketcher.Constraint("Block", 25),
    Sketcher.Constraint("Block", 26),
    Sketcher.Constraint("Block", 27),
    Sketcher.Constraint("Coincident", 0, 2, 1, 1),
    Sketcher.Constraint("Coincident", 1, 2, 2, 1),
    Sketcher.Constraint("Coincident", 2, 2, 3, 1),
    Sketcher.Constraint("Coincident", 3, 2, 4, 1),
    Sketcher.Constraint("Coincident", 4, 2, 5, 1),
    Sketcher.Constraint("Coincident", 5, 2, 6, 1),
    Sketcher.Constraint("Coincident", 6, 2, 0, 1),
    Sketcher.Constraint("Coincident", 17, 2, 18, 1),
    Sketcher.Constraint("Coincident", 18, 2, 19, 2),
    Sketcher.Constraint("Coincident", 20, 1, 21, 1),
    Sketcher.Constraint("Coincident", 21, 2, 22, 1),
    Sketcher.Constraint("Coincident", 22, 2, 23, 1),
    Sketcher.Constraint("Coincident", 23, 2, 24, 2),
    Sketcher.Constraint("Coincident", 27, 1, 28, 1),
    Sketcher.Constraint("Coincident", 28, 2, 17, 1),
    Sketcher.Constraint("Coincident", 29, 2, 30, 1),
    Sketcher.Constraint("Coincident", 30, 2, 31, 1),
    Sketcher.Constraint("Coincident", 31, 2, 32, 1),
    Sketcher.Constraint("Coincident", 32, 2, 33, 1),
    Sketcher.Constraint("Coincident", 33, 2, 34, 1),
    Sketcher.Constraint("Coincident", 34, 2, 35, 1),
    Sketcher.Constraint("Coincident", 35, 2, 36, 1),
    Sketcher.Constraint("Coincident", 36, 2, 37, 1),
    Sketcher.Constraint("Coincident", 37, 2, 38, 1),
    Sketcher.Constraint("Coincident", 38, 2, 39, 1),
    Sketcher.Constraint("Coincident", 39, 2, 40, 1),
    Sketcher.Constraint("Coincident", 40, 2, 29, 1),
    Sketcher.Constraint("Horizontal", 0),
    Sketcher.Constraint("Horizontal", 2),
    Sketcher.Constraint("Horizontal", 4),
    Sketcher.Constraint("Horizontal", 17),
    Sketcher.Constraint("Vertical", 18),
    Sketcher.Constraint("Vertical", 21),
    Sketcher.Constraint("Horizontal", 22),
    Sketcher.Constraint("Vertical", 23),
    Sketcher.Constraint("Vertical", 28),
    Sketcher.Constraint("Horizontal", 29),
    Sketcher.Constraint("Vertical", 30),
    Sketcher.Constraint("Horizontal", 31),
    Sketcher.Constraint("Vertical", 32),
    Sketcher.Constraint("Horizontal", 33),
    Sketcher.Constraint("Vertical", 34),
    Sketcher.Constraint("Horizontal", 35),
    Sketcher.Constraint("Vertical", 36),
    Sketcher.Constraint("Horizontal", 37),
    Sketcher.Constraint("Vertical", 38),
    Sketcher.Constraint("Horizontal", 39),
    Sketcher.Constraint("Vertical", 40),
    Sketcher.Constraint("Horizontal", 0, 2, 3, 2),
    Sketcher.Constraint("Horizontal", 17, 2, 21, 2),
    Sketcher.Constraint("Horizontal", 28, 2, 30, 2),
    Sketcher.Constraint("Horizontal", 2, 2, 34, 2),
    Sketcher.Constraint("Horizontal", 33, 2, 36, 2),
    Sketcher.Constraint("Horizontal", 31, 2, 38, 2),
    Sketcher.Constraint("Vertical", 30, 2, 33, 2),
    Sketcher.Constraint("Vertical", 36, 2, 39, 2),
    Sketcher.Constraint("Equal", 0, 4),
    Sketcher.Constraint("Equal", 22, 29),
    Sketcher.Constraint("Equal", 33, 37),
    Sketcher.Constraint("Equal", 35, 32),
    Sketcher.Constraint("Equal", 1, 3),
    Sketcher.Constraint("Equal", 5, 6),
    Sketcher.Constraint("DistanceY", -1, 1, 0, 2, Q("19 mm")),
    Sketcher.Constraint("DistanceY", -1, 1, 1, 2, Q("15.5 mm")),
    Sketcher.Constraint("DistanceX", 1, 2, 17, 2, Q("5.25 mm")),
    Sketcher.Constraint("DistanceY", 23, 2, 23, 1, Q("1.186298 mm")),
    Sketcher.Constraint("DistanceX", 0, 2, 0, 1, Q("0.336538 mm")),
    Sketcher.Constraint("DistanceX", 2, 1, 2, 2, Q("0.044872 mm")),
    Sketcher.Constraint("DistanceY", 30, 2, 30, 1, Q("1.032051 mm")),
    Sketcher.Constraint("DistanceX", 31, 2, 31, 1, Q("0.448718 mm")),
    Sketcher.Constraint("DistanceX", -1, 1, 4, 2, Q("14.849359 mm")),
    Sketcher.Constraint("DistanceX", -1, 1, 29, 2, Q("22.230769 mm")),
    Sketcher.Constraint("DistanceY", 5, 2, 18, 2, Q("0.59385 mm")),
])
pad3 = body.newObject("PartDesign::Pad", "Pad002")
pad3.Profile = sketch5
pad3.Length = 0.1

sketch6 = body.newObject("Sketcher::SketchObject", "Sketch005")
sketch6.AttachmentSupport = (doc.getObject("YZ_Plane"), [""])
sketch6.MapMode = "FlatFace"
sketch6.AttachmentOffset = App.Placement(Vector(0, 0, 1), App.Rotation())
sketch6.addGeometry([
    Part.LineSegment(Vector(43.5, 135, 0), Vector(43.5, 139, 0)),
    Part.ArcOfCircle(Part.Circle(Vector(41.5, 139, 0), Vector(0, 0, 1), 2), math.radians(0), math.radians(180)),
    Part.LineSegment(Vector(39.5, 139, 0), Vector(39.5, 135, 0)),
    Part.ArcOfCircle(Part.Circle(Vector(41.5, 135, 0), Vector(0, 0, 1), 2), math.radians(180), math.radians(360)),
    Part.LineSegment(Vector(6.5, 4, 0), Vector(6.5, 0, 0)),
    Part.ArcOfCircle(Part.Circle(Vector(8.5, 0, 0), Vector(0, 0, 1), 2), math.radians(180), math.radians(360)),
    Part.LineSegment(Vector(10.5, 0, 0), Vector(10.5, 4, 0)),
    Part.ArcOfCircle(Part.Circle(Vector(8.5, 4, 0), Vector(0, 0, 1), 2), math.radians(0), math.radians(180)),
], False)
sketch6.addConstraint([
    Sketcher.Constraint("Tangent", 0, 2, 1, 1),
    Sketcher.Constraint("Tangent", 1, 2, 2, 1),
    Sketcher.Constraint("Tangent", 2, 2, 3, 1),
    Sketcher.Constraint("Tangent", 3, 2, 0, 1),
    Sketcher.Constraint("Tangent", 4, 2, 5, 1),
    Sketcher.Constraint("Tangent", 5, 2, 6, 1),
    Sketcher.Constraint("Tangent", 6, 2, 7, 1),
    Sketcher.Constraint("Tangent", 7, 2, 4, 1),
    Sketcher.Constraint("Vertical", 0),
    Sketcher.Constraint("Vertical", 2),
    Sketcher.Constraint("Vertical", 4),
    Sketcher.Constraint("Vertical", 6),
    Sketcher.Constraint("Equal", 3, 5),
    Sketcher.Constraint("PointOnObject", 5, 3, -1),
    Sketcher.Constraint("Equal", 2, 4),
    Sketcher.Constraint("Radius", 1, Q("2 mm")),
    Sketcher.Constraint("DistanceY", 0, 1, 0, 2, Q("4 mm")),
    Sketcher.Constraint("DistanceY", -1, 1, 1, 3, Q("139 mm")),
    Sketcher.Constraint("DistanceX", 5, 3, 3, 3, Q("33 mm")),
    Sketcher.Constraint("DistanceX", -1, 1, 1, 3, Q("41.5 mm")),
])
pocket3 = body.newObject("PartDesign::Pocket", "Pocket002")
pocket3.Profile = sketch6
pocket3.Length = 10

doc.recompute()
